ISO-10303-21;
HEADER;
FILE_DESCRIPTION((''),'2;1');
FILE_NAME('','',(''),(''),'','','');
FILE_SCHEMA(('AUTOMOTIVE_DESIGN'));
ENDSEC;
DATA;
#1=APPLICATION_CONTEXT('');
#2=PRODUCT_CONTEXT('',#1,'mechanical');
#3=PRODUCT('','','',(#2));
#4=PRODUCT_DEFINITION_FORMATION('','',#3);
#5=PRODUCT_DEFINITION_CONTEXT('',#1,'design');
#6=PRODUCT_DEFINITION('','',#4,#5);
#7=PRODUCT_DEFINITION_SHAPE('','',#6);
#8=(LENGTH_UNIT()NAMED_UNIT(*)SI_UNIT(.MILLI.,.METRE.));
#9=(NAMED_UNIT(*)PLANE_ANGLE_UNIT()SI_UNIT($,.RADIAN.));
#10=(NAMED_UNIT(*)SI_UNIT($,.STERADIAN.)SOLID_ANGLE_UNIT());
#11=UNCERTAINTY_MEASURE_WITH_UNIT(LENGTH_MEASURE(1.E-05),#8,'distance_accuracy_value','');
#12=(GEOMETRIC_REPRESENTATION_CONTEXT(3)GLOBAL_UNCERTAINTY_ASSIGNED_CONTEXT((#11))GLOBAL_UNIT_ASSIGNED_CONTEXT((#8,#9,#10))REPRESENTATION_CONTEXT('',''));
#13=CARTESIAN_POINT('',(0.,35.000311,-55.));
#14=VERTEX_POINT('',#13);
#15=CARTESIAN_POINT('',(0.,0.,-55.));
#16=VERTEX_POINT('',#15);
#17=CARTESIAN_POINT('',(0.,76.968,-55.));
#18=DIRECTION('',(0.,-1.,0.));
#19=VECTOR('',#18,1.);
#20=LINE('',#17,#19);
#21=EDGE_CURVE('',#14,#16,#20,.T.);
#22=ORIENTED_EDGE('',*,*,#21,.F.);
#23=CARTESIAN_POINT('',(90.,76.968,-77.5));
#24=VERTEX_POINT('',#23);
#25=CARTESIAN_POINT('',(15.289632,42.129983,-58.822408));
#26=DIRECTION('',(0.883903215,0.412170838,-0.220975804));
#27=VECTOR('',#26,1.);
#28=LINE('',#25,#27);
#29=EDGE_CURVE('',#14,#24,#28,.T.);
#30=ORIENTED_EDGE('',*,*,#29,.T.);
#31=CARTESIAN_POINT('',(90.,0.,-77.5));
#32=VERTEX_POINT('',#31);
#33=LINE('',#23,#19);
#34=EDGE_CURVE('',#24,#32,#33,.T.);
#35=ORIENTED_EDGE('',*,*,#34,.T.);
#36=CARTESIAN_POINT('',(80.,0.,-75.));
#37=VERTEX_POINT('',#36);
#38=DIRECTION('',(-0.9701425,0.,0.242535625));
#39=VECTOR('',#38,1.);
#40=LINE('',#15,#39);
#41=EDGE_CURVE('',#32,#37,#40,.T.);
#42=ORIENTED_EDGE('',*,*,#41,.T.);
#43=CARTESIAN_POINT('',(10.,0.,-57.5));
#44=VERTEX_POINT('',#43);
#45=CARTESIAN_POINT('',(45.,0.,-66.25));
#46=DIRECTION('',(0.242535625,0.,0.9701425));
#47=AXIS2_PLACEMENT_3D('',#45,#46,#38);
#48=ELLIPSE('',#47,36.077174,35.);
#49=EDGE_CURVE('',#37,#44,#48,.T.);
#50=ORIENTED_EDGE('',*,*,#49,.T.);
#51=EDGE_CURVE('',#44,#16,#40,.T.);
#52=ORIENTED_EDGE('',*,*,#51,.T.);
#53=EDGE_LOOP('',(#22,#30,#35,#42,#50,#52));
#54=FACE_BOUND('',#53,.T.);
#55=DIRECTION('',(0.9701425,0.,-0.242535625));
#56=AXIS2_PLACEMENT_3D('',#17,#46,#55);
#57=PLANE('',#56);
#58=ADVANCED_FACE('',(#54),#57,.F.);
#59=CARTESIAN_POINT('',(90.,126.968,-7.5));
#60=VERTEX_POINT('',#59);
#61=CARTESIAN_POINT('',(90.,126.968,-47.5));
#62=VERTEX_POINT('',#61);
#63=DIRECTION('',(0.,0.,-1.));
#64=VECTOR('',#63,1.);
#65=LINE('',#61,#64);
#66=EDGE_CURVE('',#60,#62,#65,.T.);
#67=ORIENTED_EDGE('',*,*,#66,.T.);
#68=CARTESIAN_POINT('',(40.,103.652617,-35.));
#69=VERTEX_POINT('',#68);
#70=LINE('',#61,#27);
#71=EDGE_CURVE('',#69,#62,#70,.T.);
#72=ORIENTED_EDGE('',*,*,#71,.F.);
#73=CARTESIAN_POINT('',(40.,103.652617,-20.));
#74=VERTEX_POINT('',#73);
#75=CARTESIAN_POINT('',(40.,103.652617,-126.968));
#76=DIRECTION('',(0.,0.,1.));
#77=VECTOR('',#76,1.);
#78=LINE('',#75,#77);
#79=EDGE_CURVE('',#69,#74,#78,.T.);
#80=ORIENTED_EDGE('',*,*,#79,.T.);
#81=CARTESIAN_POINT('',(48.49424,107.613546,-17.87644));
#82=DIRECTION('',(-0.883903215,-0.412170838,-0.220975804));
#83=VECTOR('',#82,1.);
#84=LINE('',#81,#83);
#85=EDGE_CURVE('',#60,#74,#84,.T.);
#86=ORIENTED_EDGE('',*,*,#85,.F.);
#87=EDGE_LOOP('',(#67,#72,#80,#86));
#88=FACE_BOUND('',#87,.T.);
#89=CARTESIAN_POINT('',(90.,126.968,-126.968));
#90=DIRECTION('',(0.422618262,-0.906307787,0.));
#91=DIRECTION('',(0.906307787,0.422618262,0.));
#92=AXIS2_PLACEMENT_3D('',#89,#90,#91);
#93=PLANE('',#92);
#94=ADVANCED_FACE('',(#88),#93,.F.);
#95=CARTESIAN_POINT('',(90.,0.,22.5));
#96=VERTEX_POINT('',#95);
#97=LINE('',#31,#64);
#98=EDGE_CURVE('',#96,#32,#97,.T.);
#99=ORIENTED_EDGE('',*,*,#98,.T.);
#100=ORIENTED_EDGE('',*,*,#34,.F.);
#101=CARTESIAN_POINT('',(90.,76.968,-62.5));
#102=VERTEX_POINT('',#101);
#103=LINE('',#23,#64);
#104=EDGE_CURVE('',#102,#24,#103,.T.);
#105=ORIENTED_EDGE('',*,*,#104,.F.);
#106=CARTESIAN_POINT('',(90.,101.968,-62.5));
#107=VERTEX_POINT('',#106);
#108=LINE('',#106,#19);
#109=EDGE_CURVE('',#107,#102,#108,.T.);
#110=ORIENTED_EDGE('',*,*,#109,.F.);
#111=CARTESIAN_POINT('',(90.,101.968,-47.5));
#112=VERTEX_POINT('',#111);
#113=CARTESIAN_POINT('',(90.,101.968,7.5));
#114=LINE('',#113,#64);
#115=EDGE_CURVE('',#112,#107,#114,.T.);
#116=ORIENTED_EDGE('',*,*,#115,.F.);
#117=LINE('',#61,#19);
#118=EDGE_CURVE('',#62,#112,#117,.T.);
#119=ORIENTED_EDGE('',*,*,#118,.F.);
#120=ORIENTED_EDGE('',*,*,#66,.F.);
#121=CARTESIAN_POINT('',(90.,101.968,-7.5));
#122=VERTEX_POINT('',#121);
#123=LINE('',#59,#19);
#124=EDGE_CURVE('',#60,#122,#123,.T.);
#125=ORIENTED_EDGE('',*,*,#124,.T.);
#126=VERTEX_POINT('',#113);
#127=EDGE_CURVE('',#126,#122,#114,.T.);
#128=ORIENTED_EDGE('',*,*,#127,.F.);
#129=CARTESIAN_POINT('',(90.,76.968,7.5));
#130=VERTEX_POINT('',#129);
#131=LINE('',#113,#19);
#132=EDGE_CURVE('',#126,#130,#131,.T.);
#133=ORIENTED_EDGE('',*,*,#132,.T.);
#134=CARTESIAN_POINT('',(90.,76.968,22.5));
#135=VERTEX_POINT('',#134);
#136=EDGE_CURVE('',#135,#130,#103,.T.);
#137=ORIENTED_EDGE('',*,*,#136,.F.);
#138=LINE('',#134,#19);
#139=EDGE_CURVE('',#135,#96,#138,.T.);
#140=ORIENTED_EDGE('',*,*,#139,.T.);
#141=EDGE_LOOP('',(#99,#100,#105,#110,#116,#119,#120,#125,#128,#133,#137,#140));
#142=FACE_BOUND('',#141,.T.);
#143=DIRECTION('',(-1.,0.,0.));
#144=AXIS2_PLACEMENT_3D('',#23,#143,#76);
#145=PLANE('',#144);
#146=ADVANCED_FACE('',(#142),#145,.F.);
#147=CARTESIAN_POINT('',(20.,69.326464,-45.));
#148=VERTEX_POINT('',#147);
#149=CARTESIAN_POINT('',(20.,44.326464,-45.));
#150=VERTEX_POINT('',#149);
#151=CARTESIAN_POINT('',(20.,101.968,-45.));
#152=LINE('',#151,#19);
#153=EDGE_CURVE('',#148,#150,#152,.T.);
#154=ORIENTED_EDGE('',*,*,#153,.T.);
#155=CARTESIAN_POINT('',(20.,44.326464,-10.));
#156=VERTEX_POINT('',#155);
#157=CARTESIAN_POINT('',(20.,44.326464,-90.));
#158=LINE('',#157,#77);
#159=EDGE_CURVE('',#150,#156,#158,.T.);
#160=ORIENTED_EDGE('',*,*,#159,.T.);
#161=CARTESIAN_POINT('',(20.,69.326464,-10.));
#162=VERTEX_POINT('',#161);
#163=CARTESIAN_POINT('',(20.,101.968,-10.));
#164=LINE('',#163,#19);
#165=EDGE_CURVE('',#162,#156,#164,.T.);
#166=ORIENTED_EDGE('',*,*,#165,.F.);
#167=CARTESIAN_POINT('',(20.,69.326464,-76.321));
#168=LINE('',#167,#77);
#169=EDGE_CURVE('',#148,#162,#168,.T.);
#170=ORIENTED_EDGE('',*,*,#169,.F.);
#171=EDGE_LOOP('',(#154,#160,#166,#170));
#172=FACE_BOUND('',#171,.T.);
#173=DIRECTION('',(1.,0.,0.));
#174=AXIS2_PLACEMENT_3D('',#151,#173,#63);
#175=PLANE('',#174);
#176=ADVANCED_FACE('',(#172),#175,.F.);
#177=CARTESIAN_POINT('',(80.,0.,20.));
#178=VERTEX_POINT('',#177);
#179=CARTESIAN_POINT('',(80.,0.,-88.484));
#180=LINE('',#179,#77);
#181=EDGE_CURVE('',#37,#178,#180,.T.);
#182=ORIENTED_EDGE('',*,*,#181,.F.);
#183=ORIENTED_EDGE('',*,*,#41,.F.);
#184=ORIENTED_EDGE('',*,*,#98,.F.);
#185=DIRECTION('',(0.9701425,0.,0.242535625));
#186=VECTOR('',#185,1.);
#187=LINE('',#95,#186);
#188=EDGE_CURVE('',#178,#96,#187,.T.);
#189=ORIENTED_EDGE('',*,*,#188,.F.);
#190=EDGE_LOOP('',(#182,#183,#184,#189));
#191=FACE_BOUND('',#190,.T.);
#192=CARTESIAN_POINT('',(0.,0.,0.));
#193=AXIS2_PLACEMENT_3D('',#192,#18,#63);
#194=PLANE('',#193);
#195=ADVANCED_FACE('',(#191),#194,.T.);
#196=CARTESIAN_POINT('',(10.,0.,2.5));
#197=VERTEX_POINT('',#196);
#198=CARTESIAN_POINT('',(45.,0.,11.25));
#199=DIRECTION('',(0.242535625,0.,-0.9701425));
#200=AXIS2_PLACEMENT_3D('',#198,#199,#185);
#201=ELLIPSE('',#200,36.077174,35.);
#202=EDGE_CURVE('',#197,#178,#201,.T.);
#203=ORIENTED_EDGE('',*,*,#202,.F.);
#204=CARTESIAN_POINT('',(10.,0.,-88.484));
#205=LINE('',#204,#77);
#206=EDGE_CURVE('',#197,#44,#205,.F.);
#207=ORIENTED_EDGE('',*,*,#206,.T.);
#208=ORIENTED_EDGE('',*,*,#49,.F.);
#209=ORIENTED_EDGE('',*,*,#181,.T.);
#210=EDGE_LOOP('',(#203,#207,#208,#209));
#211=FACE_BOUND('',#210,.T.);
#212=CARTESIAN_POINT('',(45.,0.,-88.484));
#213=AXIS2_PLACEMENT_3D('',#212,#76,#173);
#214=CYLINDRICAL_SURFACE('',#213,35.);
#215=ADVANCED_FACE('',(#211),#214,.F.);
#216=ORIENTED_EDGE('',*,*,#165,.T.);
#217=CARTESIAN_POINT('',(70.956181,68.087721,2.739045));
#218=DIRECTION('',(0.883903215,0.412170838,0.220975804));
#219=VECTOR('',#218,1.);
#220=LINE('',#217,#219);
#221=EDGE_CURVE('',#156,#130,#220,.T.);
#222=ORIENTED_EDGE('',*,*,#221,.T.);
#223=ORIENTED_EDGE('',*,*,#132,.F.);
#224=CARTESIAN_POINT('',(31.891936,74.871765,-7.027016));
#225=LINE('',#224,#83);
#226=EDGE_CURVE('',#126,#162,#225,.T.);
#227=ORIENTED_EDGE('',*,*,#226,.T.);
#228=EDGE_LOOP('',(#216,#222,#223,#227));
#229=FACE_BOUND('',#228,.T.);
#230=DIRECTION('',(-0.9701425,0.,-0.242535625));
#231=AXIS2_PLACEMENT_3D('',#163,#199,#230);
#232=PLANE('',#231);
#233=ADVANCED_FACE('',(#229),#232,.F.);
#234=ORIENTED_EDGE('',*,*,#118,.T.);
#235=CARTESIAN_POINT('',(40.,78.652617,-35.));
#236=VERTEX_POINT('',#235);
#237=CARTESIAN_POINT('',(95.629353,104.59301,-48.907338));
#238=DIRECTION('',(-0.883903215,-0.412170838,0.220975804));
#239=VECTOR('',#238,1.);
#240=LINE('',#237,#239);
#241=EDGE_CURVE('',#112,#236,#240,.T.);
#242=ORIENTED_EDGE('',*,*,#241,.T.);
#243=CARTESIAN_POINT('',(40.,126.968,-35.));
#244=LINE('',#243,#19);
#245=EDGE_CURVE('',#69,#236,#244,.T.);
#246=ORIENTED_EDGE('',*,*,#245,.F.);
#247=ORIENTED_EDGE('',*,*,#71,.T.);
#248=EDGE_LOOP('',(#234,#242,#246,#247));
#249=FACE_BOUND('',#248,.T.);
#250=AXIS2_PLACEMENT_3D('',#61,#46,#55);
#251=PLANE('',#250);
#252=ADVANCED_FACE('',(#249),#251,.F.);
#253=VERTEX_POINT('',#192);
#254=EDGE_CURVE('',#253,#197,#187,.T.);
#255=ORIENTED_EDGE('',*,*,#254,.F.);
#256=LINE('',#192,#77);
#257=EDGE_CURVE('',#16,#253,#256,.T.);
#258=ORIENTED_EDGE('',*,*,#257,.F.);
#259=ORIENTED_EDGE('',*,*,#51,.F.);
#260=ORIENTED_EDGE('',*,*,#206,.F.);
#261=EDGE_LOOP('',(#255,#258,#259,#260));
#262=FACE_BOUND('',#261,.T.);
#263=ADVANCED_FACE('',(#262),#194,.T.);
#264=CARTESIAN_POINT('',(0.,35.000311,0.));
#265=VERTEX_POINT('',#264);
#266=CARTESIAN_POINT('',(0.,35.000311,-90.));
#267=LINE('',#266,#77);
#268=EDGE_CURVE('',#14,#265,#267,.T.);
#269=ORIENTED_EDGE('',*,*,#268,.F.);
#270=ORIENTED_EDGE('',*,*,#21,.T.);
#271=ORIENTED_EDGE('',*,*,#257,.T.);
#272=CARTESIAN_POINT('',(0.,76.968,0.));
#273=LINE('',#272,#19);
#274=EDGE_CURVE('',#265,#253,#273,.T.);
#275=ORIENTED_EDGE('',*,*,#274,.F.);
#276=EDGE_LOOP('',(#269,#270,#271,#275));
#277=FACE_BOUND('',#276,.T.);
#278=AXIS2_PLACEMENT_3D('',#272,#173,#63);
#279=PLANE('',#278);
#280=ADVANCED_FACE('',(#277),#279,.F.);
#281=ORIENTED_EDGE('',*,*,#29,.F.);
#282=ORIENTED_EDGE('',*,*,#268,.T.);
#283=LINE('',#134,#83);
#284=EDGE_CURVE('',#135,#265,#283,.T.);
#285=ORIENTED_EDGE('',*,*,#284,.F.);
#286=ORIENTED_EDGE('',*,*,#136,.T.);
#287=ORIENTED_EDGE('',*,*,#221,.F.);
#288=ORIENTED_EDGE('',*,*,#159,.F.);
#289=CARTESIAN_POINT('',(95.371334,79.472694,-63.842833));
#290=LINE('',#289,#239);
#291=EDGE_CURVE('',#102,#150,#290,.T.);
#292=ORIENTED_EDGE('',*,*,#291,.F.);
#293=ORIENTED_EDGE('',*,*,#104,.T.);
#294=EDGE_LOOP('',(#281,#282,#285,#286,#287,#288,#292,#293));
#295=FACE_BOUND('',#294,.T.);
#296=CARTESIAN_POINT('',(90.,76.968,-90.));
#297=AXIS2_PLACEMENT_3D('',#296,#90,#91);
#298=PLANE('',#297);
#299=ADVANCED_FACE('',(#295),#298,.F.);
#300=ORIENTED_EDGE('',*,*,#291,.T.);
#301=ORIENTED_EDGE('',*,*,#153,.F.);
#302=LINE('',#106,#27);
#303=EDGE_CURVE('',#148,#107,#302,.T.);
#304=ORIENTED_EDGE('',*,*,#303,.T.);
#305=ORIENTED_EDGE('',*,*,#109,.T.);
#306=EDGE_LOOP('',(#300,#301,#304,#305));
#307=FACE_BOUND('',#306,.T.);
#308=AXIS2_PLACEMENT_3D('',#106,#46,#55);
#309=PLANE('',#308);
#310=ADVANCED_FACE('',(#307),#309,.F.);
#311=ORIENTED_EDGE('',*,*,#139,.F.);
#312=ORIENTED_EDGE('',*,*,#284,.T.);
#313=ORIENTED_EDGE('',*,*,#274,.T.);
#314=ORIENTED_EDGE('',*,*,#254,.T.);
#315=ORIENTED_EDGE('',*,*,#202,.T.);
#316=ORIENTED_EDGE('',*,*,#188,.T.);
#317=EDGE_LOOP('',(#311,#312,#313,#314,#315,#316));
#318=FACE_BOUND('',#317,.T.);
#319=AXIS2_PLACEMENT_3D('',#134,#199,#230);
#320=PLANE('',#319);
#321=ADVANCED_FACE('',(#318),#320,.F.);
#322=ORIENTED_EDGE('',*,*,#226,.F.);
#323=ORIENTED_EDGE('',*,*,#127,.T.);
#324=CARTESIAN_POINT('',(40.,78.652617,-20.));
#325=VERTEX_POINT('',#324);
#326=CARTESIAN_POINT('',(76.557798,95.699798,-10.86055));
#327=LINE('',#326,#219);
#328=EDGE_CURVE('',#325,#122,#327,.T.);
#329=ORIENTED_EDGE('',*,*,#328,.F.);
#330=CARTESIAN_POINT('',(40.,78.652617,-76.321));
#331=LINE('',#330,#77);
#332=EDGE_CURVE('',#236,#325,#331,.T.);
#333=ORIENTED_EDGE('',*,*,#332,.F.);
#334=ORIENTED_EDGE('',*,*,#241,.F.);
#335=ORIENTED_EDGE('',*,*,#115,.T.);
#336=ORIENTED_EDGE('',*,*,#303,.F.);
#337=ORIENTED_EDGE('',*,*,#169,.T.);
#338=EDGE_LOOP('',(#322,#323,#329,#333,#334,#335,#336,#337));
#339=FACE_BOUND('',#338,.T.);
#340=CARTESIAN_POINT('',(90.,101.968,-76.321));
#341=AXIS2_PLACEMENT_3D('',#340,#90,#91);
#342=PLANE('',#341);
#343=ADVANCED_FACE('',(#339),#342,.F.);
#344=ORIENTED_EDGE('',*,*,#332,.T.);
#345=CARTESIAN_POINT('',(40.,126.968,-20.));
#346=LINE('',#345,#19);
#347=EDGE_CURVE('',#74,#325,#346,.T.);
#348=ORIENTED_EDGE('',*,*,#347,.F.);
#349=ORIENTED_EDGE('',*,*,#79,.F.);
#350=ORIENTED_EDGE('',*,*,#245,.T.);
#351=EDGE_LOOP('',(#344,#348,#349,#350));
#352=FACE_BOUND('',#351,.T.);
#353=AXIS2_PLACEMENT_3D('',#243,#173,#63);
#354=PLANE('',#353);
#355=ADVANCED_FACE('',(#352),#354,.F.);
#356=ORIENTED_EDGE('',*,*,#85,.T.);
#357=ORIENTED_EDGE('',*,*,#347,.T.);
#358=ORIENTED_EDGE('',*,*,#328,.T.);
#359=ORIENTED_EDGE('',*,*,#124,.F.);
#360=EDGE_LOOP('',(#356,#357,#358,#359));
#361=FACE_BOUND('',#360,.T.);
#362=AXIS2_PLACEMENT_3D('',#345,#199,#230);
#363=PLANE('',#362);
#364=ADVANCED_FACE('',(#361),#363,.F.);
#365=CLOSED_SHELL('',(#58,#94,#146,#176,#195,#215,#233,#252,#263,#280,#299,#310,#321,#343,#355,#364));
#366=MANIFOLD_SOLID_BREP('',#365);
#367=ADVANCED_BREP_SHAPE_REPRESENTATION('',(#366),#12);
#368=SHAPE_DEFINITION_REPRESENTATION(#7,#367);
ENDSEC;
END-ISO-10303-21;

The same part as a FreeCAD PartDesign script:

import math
import FreeCAD as App
import Part
import Sketcher

V = App.Vector
Q = App.Units.Quantity

doc = App.newDocument("Part")
body = doc.addObject("PartDesign::Body", "Body")

# Sketch on XZ plane
sketch1 = body.newObject("Sketcher::SketchObject", "Sketch")
sketch1.AttachmentSupport = (doc.getObject("XZ_Plane"), [""])
sketch1.MapMode = "FlatFace"
sketch1.addGeometry(Part.LineSegment(V(0, -55, 0), V(0, 0, 0)), False)
sketch1.addGeometry(Part.LineSegment(V(0, 0, 0), V(90, 22, 0)), False)
sketch1.addGeometry(Part.LineSegment(V(90, 22, 0), V(90, -78, 0)), False)
sketch1.addGeometry(Part.LineSegment(V(90, -78, 0), V(0, -55, 0)), False)
sketch1.addConstraint(Sketcher.Constraint("Coincident", 0, 2, 1, 1))
sketch1.addConstraint(Sketcher.Constraint("Coincident", 1, 2, 2, 1))
sketch1.addConstraint(Sketcher.Constraint("Coincident", 2, 2, 3, 1))
sketch1.addConstraint(Sketcher.Constraint("Coincident", 3, 2, 0, 1))
sketch1.addConstraint(Sketcher.Constraint("Vertical", 0))
sketch1.addConstraint(Sketcher.Constraint("Vertical", 2))
sketch1.addConstraint(Sketcher.Constraint("Coincident", 0, 2, -1, 1))
sketch1.addConstraint(Sketcher.Constraint("Equal", 1, 3))
sketch1.addConstraint(Sketcher.Constraint("DistanceY", 0, 1, 0, 2, Q("55 mm")))
sketch1.addConstraint(Sketcher.Constraint("DistanceY", 2, 2, 2, 1, Q("100 mm")))
sketch1.addConstraint(Sketcher.Constraint("DistanceX", -1, 1, 1, 2, Q("90 mm")))
pad1 = body.newObject("PartDesign::Pad", "Pad")
pad1.Profile = sketch1
pad1.Length = 76.968
pad1.Reversed = True

# Sketch on XY plane
sketch2 = body.newObject("Sketcher::SketchObject", "Sketch001")
sketch2.AttachmentSupport = (doc.getObject("XY_Plane"), [""])
sketch2.MapMode = "FlatFace"
sketch2.addGeometry(Part.LineSegment(V(0, 35, 0), V(90, 77, 0)), False)
sketch2.addGeometry(Part.LineSegment(V(90, 77, 0), V(0, 77, 0)), False)
sketch2.addGeometry(Part.LineSegment(V(0, 77, 0), V(0, 35, 0)), False)
sketch2.addConstraint(Sketcher.Constraint("Coincident", 0, 2, 1, 1))
sketch2.addConstraint(Sketcher.Constraint("Coincident", 1, 2, 2, 1))
sketch2.addConstraint(Sketcher.Constraint("Coincident", 2, 2, 0, 1))
sketch2.addConstraint(Sketcher.Constraint("Horizontal", 1))
sketch2.addConstraint(Sketcher.Constraint("Vertical", 2))
sketch2.addConstraint(Sketcher.Constraint("PointOnObject", 1, 2, -2))
sketch2.addConstraint(Sketcher.Constraint("DistanceX", 1, 2, 1, 1, Q("90 mm")))
sketch2.addConstraint(Sketcher.Constraint("Angle", 0, Q("25 deg")))
sketch2.addConstraint(Sketcher.Constraint("DistanceY", -1, 1, 0, 2, Q("76.968 mm")))
pocket1 = body.newObject("PartDesign::Pocket", "Pocket")
pocket1.Profile = sketch2
pocket1.Length = 180
pocket1.Midplane = True

# Sketch on XZ plane
sketch3 = body.newObject("Sketcher::SketchObject", "Sketch002")
sketch3.AttachmentSupport = (doc.getObject("XZ_Plane"), [""])
sketch3.MapMode = "FlatFace"
sketch3.addGeometry(Part.LineSegment(V(90, -62, 0), V(20, -45, 0)), False)
sketch3.addGeometry(Part.LineSegment(V(20, -45, 0), V(20, -10, 0)), False)
sketch3.addGeometry(Part.LineSegment(V(20, -10, 0), V(90, 8, 0)), False)
sketch3.addGeometry(Part.LineSegment(V(90, 8, 0), V(90, -62, 0)), False)
sketch3.addConstraint(Sketcher.Constraint("Coincident", 0, 2, 1, 1))
sketch3.addConstraint(Sketcher.Constraint("Coincident", 1, 2, 2, 1))
sketch3.addConstraint(Sketcher.Constraint("Coincident", 2, 2, 3, 1))
sketch3.addConstraint(Sketcher.Constraint("Coincident", 3, 2, 0, 1))
sketch3.addConstraint(Sketcher.Constraint("Vertical", 1))
sketch3.addConstraint(Sketcher.Constraint("Vertical", 3))
sketch3.addConstraint(Sketcher.Constraint("Equal", 0, 2))
sketch3.addConstraint(Sketcher.Constraint("DistanceY", 1, 1, 1, 2, Q("35 mm")))
sketch3.addConstraint(Sketcher.Constraint("DistanceY", 3, 2, 3, 1, Q("70 mm")))
sketch3.addConstraint(Sketcher.Constraint("DistanceX", -1, 1, 0, 2, Q("20 mm")))
sketch3.addConstraint(Sketcher.Constraint("DistanceY", 0, 2, -1, 1, Q("45 mm")))
sketch3.addConstraint(Sketcher.Constraint("DistanceX", -1, 1, 2, 2, Q("90 mm")))
pad2 = body.newObject("PartDesign::Pad", "Pad001")
pad2.Profile = sketch3
pad2.Length = 101.968
pad2.Reversed = True

# Sketch on XY plane
sketch4 = body.newObject("Sketcher::SketchObject", "Sketch003")
sketch4.AttachmentSupport = (doc.getObject("XY_Plane"), [""])
sketch4.MapMode = "FlatFace"
sketch4.addGeometry(Part.LineSegment(V(20, 69, 0), V(90, 102, 0)), False)
sketch4.addGeometry(Part.LineSegment(V(90, 102, 0), V(20, 102, 0)), False)
sketch4.addGeometry(Part.LineSegment(V(20, 102, 0), V(20, 69, 0)), False)
sketch4.addConstraint(Sketcher.Constraint("Coincident", 0, 2, 1, 1))
sketch4.addConstraint(Sketcher.Constraint("Coincident", 1, 2, 2, 1))
sketch4.addConstraint(Sketcher.Constraint("Coincident", 2, 2, 0, 1))
sketch4.addConstraint(Sketcher.Constraint("Horizontal", 1))
sketch4.addConstraint(Sketcher.Constraint("Vertical", 2))
sketch4.addConstraint(Sketcher.Constraint("DistanceX", 1, 2, 1, 1, Q("70 mm")))
sketch4.addConstraint(Sketcher.Constraint("Angle", 0, Q("25 deg")))
sketch4.addConstraint(Sketcher.Constraint("DistanceX", -1, 1, 0, 2, Q("90 mm")))
sketch4.addConstraint(Sketcher.Constraint("DistanceY", -1, 1, 0, 2, Q("101.968 mm")))
pocket2 = body.newObject("PartDesign::Pocket", "Pocket001")
pocket2.Profile = sketch4
pocket2.Length = 152.642
pocket2.Midplane = True

# Sketch on XZ plane
sketch5 = body.newObject("Sketcher::SketchObject", "Sketch004")
sketch5.AttachmentSupport = (doc.getObject("XZ_Plane"), [""])
sketch5.MapMode = "FlatFace"
sketch5.addGeometry(Part.LineSegment(V(90, -48, 0), V(40, -35, 0)), False)
sketch5.addGeometry(Part.LineSegment(V(40, -35, 0), V(40, -20, 0)), False)
sketch5.addGeometry(Part.LineSegment(V(40, -20, 0), V(90, -8, 0)), False)
sketch5.addGeometry(Part.LineSegment(V(90, -8, 0), V(90, -48, 0)), False)
sketch5.addConstraint(Sketcher.Constraint("Coincident", 0, 2, 1, 1))
sketch5.addConstraint(Sketcher.Constraint("Coincident", 1, 2, 2, 1))
sketch5.addConstraint(Sketcher.Constraint("Coincident", 2, 2, 3, 1))
sketch5.addConstraint(Sketcher.Constraint("Coincident", 3, 2, 0, 1))
sketch5.addConstraint(Sketcher.Constraint("Vertical", 1))
sketch5.addConstraint(Sketcher.Constraint("Vertical", 3))
sketch5.addConstraint(Sketcher.Constraint("Equal", 0, 2))
sketch5.addConstraint(Sketcher.Constraint("DistanceY", 1, 1, 1, 2, Q("15 mm")))
sketch5.addConstraint(Sketcher.Constraint("DistanceY", 3, 2, 3, 1, Q("40 mm")))
sketch5.addConstraint(Sketcher.Constraint("DistanceX", -1, 1, 0, 2, Q("40 mm")))
sketch5.addConstraint(Sketcher.Constraint("DistanceY", 0, 2, -1, 1, Q("35 mm")))
sketch5.addConstraint(Sketcher.Constraint("DistanceX", -1, 1, 2, 2, Q("90 mm")))
pad3 = body.newObject("PartDesign::Pad", "Pad002")
pad3.Profile = sketch5
pad3.Length = 126.968
pad3.Reversed = True

# Sketch on XY plane
sketch6 = body.newObject("Sketcher::SketchObject", "Sketch005")
sketch6.AttachmentSupport = (doc.getObject("XY_Plane"), [""])
sketch6.MapMode = "FlatFace"
sketch6.addGeometry(Part.LineSegment(V(40, 104, 0), V(90, 127, 0)), False)
sketch6.addGeometry(Part.LineSegment(V(90, 127, 0), V(40, 127, 0)), False)
sketch6.addGeometry(Part.LineSegment(V(40, 127, 0), V(40, 104, 0)), False)
sketch6.addConstraint(Sketcher.Constraint("Coincident", 0, 2, 1, 1))
sketch6.addConstraint(Sketcher.Constraint("Coincident", 1, 2, 2, 1))
sketch6.addConstraint(Sketcher.Constraint("Coincident", 2, 2, 0, 1))
sketch6.addConstraint(Sketcher.Constraint("Horizontal", 1))
sketch6.addConstraint(Sketcher.Constraint("Vertical", 2))
sketch6.addConstraint(Sketcher.Constraint("DistanceX", 1, 2, 1, 1, Q("50 mm")))
sketch6.addConstraint(Sketcher.Constraint("Angle", 0, Q("25 deg")))
sketch6.addConstraint(Sketcher.Constraint("DistanceX", -1, 1, 0, 2, Q("90 mm")))
sketch6.addConstraint(Sketcher.Constraint("DistanceY", -1, 1, 0, 2, Q("126.968 mm")))
pocket3 = body.newObject("PartDesign::Pocket", "Pocket002")
pocket3.Profile = sketch6
pocket3.Length = 126.968

# Sketch on XY plane
sketch7 = body.newObject("Sketcher::SketchObject", "Sketch006")
sketch7.AttachmentSupport = (doc.getObject("XY_Plane"), [""])
sketch7.MapMode = "FlatFace"
sketch7.addGeometry(Part.LineSegment(V(10, 0, 0), V(80, 0, 0)), False)
sketch7.addGeometry(Part.ArcOfCircle(Part.Circle(V(45, 0, 0), V(0, 0, 1), 35), math.radians(0), math.radians(180)), False)
sketch7.addConstraint(Sketcher.Constraint("Coincident", 0, 1, 1, 2))
sketch7.addConstraint(Sketcher.Constraint("Coincident", 1, 1, 0, 2))
sketch7.addConstraint(Sketcher.Constraint("Horizontal", 0))
sketch7.addConstraint(Sketcher.Constraint("PointOnObject", 1, 3, -1))
sketch7.addConstraint(Sketcher.Constraint("PointOnObject", 0, 1, -1))
sketch7.addConstraint(Sketcher.Constraint("Radius", 1, Q("35 mm")))
sketch7.addConstraint(Sketcher.Constraint("DistanceX", -1, 1, 1, 3, Q("45 mm")))
pocket4 = body.newObject("PartDesign::Pocket", "Pocket003")
pocket4.Profile = sketch7
pocket4.Length = 176.968
pocket4.Midplane = True

doc.recompute()
